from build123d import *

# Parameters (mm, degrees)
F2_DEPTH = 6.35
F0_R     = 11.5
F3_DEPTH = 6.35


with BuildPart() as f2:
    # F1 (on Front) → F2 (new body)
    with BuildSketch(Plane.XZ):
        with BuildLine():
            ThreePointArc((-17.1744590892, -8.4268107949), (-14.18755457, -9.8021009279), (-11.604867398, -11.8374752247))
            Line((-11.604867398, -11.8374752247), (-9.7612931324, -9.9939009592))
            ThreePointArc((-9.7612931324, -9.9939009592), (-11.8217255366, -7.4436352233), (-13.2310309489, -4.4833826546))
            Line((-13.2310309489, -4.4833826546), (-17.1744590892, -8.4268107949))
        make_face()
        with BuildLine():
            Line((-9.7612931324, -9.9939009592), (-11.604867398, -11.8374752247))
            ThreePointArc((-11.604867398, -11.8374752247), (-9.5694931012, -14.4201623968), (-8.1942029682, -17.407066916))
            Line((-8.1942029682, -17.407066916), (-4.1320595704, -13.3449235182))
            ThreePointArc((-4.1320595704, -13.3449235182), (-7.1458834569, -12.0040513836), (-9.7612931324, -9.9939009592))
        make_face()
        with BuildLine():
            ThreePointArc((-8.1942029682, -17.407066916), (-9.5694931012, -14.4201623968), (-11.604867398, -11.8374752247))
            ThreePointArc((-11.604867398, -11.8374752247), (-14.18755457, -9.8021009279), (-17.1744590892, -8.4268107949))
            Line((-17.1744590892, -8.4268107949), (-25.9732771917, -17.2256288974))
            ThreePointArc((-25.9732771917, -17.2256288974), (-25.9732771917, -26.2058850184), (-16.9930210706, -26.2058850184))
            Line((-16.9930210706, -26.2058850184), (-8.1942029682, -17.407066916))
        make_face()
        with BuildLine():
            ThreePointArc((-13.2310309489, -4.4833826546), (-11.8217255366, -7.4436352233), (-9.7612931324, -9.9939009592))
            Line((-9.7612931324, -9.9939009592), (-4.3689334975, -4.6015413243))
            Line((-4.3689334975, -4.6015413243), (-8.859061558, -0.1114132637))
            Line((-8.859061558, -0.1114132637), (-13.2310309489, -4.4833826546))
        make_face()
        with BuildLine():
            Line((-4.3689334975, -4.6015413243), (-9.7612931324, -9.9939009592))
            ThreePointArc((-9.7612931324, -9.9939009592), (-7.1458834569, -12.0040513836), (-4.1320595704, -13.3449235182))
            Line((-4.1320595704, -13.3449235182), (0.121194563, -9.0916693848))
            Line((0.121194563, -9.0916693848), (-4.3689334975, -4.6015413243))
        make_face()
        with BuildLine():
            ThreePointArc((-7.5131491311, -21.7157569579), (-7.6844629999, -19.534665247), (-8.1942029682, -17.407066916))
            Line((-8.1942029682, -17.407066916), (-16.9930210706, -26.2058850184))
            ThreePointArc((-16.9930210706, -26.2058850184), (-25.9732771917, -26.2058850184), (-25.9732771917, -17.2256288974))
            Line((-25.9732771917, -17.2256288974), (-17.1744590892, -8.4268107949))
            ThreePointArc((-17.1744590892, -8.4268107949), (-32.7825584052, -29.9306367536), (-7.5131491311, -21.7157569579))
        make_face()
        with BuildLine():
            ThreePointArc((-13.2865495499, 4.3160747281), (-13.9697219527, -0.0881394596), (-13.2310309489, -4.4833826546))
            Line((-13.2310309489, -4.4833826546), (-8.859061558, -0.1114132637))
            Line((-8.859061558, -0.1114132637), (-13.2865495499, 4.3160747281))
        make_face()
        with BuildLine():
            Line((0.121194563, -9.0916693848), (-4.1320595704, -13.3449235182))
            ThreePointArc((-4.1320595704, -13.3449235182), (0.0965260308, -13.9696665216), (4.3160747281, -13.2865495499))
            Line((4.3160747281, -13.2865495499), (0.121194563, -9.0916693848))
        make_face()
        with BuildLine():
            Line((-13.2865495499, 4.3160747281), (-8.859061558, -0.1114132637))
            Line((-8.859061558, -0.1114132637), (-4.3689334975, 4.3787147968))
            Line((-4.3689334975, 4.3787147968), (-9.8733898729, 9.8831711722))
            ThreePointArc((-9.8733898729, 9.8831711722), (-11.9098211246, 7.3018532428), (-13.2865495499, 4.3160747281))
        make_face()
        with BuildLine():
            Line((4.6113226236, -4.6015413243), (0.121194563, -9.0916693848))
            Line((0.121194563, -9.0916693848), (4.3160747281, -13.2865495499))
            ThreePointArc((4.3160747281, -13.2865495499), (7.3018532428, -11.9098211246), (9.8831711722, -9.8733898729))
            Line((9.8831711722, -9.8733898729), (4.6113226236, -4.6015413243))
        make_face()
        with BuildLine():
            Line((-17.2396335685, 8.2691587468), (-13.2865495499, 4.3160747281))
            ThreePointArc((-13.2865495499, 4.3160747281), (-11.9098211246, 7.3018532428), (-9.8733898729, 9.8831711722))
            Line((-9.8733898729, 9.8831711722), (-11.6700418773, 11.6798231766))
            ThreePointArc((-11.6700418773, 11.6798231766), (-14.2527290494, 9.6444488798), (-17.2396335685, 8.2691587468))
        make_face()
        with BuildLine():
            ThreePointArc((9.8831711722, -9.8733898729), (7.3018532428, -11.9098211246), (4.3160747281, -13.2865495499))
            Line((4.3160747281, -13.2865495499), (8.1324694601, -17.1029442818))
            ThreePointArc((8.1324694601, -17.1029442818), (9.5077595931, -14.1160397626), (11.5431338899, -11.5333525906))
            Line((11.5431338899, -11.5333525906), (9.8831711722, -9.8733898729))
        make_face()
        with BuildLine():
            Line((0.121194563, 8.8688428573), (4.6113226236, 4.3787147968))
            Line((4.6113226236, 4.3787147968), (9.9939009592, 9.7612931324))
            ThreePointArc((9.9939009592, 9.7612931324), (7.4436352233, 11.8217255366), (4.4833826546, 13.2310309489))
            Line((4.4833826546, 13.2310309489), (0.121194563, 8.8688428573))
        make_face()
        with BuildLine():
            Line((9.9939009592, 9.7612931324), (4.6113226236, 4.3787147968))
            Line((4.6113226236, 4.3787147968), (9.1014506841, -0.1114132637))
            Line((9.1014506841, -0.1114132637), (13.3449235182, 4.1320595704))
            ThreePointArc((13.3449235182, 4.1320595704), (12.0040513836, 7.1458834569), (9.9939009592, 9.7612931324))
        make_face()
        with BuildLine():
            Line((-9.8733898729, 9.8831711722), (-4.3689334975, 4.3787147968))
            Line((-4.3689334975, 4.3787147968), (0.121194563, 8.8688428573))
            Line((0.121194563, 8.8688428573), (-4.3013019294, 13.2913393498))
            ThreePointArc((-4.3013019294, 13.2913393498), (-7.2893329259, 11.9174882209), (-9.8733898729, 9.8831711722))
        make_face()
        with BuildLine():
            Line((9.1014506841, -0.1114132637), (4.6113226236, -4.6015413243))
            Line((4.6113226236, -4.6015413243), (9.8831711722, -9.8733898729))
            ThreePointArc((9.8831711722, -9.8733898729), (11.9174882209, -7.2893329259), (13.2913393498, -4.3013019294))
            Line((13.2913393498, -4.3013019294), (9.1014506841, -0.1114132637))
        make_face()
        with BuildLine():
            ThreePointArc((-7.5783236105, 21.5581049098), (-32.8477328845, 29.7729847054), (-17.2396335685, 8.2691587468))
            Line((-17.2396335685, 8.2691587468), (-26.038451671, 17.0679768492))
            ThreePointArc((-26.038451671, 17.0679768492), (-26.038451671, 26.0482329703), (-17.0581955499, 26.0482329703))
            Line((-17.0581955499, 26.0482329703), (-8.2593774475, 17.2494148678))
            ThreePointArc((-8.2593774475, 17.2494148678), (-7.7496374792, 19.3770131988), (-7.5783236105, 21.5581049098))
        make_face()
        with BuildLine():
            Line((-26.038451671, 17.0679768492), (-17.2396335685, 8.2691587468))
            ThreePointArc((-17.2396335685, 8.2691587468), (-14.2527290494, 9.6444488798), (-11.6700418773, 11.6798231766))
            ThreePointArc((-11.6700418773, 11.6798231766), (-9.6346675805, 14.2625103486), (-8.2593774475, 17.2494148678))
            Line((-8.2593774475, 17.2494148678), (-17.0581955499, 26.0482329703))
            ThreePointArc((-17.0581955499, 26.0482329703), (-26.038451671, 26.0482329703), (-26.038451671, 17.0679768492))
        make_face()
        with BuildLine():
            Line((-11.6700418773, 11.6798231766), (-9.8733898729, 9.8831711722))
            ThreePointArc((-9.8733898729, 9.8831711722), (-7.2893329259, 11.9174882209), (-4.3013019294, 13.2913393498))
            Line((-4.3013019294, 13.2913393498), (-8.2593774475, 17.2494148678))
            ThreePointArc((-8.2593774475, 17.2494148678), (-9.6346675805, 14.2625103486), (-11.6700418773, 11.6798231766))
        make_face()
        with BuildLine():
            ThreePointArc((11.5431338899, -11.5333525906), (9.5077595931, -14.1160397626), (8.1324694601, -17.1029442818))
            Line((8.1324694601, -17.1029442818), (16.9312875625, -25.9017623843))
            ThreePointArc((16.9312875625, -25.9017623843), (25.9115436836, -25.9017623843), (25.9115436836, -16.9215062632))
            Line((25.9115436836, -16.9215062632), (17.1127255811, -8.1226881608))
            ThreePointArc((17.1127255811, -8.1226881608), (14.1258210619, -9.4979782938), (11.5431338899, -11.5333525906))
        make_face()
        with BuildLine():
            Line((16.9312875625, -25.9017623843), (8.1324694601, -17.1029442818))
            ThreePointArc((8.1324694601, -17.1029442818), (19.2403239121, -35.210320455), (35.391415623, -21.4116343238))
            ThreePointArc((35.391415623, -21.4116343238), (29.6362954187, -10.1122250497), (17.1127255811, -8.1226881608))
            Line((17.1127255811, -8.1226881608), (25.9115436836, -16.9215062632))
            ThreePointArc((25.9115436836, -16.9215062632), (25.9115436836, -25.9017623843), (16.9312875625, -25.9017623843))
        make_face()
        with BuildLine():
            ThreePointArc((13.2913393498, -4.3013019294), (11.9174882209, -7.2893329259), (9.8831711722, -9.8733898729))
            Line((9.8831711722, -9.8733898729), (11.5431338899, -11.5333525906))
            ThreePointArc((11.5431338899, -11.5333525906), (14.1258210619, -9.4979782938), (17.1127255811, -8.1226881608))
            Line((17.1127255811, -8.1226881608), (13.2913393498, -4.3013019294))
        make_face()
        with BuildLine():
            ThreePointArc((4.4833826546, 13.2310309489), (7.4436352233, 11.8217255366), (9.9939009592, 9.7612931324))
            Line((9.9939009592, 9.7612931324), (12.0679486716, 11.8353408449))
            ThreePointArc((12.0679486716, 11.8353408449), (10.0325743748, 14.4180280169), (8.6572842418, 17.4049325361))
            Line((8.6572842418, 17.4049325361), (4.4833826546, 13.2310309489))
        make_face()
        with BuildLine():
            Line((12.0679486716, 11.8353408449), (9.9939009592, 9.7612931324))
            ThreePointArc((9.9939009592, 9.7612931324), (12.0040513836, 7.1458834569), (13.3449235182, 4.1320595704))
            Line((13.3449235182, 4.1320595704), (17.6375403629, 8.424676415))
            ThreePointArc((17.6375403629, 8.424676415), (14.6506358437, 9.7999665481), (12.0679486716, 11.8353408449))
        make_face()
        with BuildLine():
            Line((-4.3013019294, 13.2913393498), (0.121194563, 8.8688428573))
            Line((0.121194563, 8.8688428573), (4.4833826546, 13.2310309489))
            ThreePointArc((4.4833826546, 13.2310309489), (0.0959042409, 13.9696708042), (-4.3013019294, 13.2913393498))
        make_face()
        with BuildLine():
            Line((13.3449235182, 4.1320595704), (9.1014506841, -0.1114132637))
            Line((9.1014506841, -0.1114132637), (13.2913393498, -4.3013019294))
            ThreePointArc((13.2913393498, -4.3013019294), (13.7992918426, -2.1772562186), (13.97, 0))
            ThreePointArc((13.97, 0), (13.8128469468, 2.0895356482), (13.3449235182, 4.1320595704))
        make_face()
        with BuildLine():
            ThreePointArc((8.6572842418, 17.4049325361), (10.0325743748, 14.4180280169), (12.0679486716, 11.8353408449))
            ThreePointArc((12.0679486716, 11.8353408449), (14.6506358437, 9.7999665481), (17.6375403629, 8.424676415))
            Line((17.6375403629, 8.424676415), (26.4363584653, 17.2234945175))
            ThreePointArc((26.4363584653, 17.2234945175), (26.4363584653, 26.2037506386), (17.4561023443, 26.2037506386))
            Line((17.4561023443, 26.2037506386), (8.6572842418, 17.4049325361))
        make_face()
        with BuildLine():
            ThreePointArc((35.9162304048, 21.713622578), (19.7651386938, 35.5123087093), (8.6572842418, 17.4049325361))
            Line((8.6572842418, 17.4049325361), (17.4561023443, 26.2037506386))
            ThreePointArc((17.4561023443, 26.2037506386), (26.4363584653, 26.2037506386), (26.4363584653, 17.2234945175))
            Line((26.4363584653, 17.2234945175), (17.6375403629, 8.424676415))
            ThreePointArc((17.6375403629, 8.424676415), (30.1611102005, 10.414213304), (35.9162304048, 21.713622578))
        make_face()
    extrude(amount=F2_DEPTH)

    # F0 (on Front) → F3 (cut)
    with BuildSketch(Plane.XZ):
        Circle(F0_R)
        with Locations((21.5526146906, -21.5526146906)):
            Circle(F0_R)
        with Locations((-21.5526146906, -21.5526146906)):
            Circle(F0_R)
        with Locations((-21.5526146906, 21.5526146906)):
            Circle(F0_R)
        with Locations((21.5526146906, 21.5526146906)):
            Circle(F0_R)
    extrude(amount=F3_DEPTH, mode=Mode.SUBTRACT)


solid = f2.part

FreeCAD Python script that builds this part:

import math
import FreeCAD as App
import Part
import Sketcher
Q = App.Units.Quantity


def add_polygon(sketch, points):
    """Adds a closed chain of lines whose ends are joined by coincident constraints."""
    first, n = sketch.GeometryCount, len(points)
    for a, b in zip(points, points[1:] + points[:1]):
        sketch.addGeometry(Part.LineSegment(App.Vector(*a, 0), App.Vector(*b, 0)), False)
    for i in range(n):
        sketch.addConstraint(Sketcher.Constraint("Coincident", first + i, 2, first + (i + 1) % n, 1))

doc = App.newDocument("Part")
body = doc.addObject("PartDesign::Body", "Body")

# Sketch on XZ plane
sketch1 = body.newObject("Sketcher::SketchObject", "Sketch")
sketch1.AttachmentSupport = (doc.getObject("XZ_Plane"), [""])
sketch1.MapMode = "FlatFace"
sketch1.addGeometry(Part.LineSegment(App.Vector(17.1, -8.1, 0), App.Vector(13.3, -4.3, 0)), False)  # 0
sketch1.addGeometry(Part.ArcOfCircle(Part.Circle(App.Vector(0, 0, 0), App.Vector(0, 0, 1), 14), math.radians(-17.93), math.radians(0)), False)  # 1
sketch1.addGeometry(Part.ArcOfCircle(Part.Circle(App.Vector(0, 0, 0), App.Vector(0, 0, 1), 14), math.radians(0), math.radians(17.2)), False)  # 2
sketch1.addGeometry(Part.LineSegment(App.Vector(13.3, 4.1, 0), App.Vector(17.6, 8.4, 0)), False)  # 3
sketch1.addGeometry(Part.ArcOfCircle(Part.Circle(App.Vector(21.9, 21.7, 0), App.Vector(0, 0, 1), 14), math.radians(-108), math.radians(198)), False)  # 4
sketch1.addGeometry(Part.LineSegment(App.Vector(8.7, 17.4, 0), App.Vector(4.5, 13.2, 0)), False)  # 5
sketch1.addGeometry(Part.ArcOfCircle(Part.Circle(App.Vector(0, 0, 0), App.Vector(0, 0, 1), 14), math.radians(71), math.radians(108)), False)  # 6
sketch1.addGeometry(Part.LineSegment(App.Vector(-4.3, 13.3, 0), App.Vector(-8.3, 17.2, 0)), False)  # 7
sketch1.addGeometry(Part.ArcOfCircle(Part.Circle(App.Vector(-21.5, 21.6, 0), App.Vector(0, 0, 1), 14), math.radians(-17.96), math.radians(0)), False)  # 8
sketch1.addGeometry(Part.ArcOfCircle(Part.Circle(App.Vector(-21.5, 21.6, 0), App.Vector(0, 0, 1), 14), math.radians(0), math.radians(288)), False)  # 9
sketch1.addGeometry(Part.LineSegment(App.Vector(-17.2, 8.3, 0), App.Vector(-13.3, 4.3, 0)), False)  # 10
sketch1.addGeometry(Part.ArcOfCircle(Part.Circle(App.Vector(0, 0, 0), App.Vector(0, 0, 1), 14), math.radians(162), math.radians(199)), False)  # 11
sketch1.addGeometry(Part.LineSegment(App.Vector(-13.2, -4.5, 0), App.Vector(-17.2, -8.4, 0)), False)  # 12
sketch1.addGeometry(Part.ArcOfCircle(Part.Circle(App.Vector(-21.5, -21.7, 0), App.Vector(0, 0, 1), 14), math.radians(72), math.radians(360)), False)  # 13
sketch1.addGeometry(Part.ArcOfCircle(Part.Circle(App.Vector(-21.5, -21.7, 0), App.Vector(0, 0, 1), 14), math.radians(0), math.radians(17.96)), False)  # 14
sketch1.addGeometry(Part.LineSegment(App.Vector(-8.2, -17.4, 0), App.Vector(-4.1, -13.3, 0)), False)  # 15
sketch1.addGeometry(Part.ArcOfCircle(Part.Circle(App.Vector(0, 0, 0), App.Vector(0, 0, 1), 14), math.radians(-107), math.radians(-72)), False)  # 16
sketch1.addGeometry(Part.LineSegment(App.Vector(4.3, -13.3, 0), App.Vector(8.1, -17.1, 0)), False)  # 17
sketch1.addGeometry(Part.ArcOfCircle(Part.Circle(App.Vector(21.4, -21.4, 0), App.Vector(0, 0, 1), 14), math.radians(162), math.radians(360)), False)  # 18
sketch1.addGeometry(Part.ArcOfCircle(Part.Circle(App.Vector(21.4, -21.4, 0), App.Vector(0, 0, 1), 14), math.radians(0), math.radians(108)), False)  # 19
add_polygon(sketch1, [(4.6, 4.4), (9.1, -0.1), (4.6, -4.6), (0.1, -9.1), (-4.4, -4.6), (-8.9, -0.1), (0.1, 8.9)])  # lines 20-26
sketch1.addConstraint([
    Sketcher.Constraint("Coincident", 0, 2, 1, 1),
    Sketcher.Constraint("Tangent", 1, 2, 2, 1),
    Sketcher.Constraint("Coincident", 2, 2, 3, 1),
    Sketcher.Constraint("Coincident", 3, 2, 4, 1),
    Sketcher.Constraint("Coincident", 4, 2, 5, 1),
    Sketcher.Constraint("Coincident", 5, 2, 6, 1),
    Sketcher.Constraint("Coincident", 6, 2, 7, 1),
    Sketcher.Constraint("Coincident", 7, 2, 8, 1),
    Sketcher.Constraint("Tangent", 8, 2, 9, 1),
    Sketcher.Constraint("Coincident", 9, 2, 10, 1),
    Sketcher.Constraint("Coincident", 10, 2, 11, 1),
    Sketcher.Constraint("Coincident", 11, 2, 12, 1),
    Sketcher.Constraint("Coincident", 12, 2, 13, 1),
    Sketcher.Constraint("Tangent", 13, 2, 14, 1),
    Sketcher.Constraint("Coincident", 14, 2, 15, 1),
    Sketcher.Constraint("Coincident", 15, 2, 16, 1),
    Sketcher.Constraint("Coincident", 16, 2, 17, 1),
    Sketcher.Constraint("Coincident", 17, 2, 18, 1),
    Sketcher.Constraint("Tangent", 18, 2, 19, 1),
    Sketcher.Constraint("Coincident", 19, 2, 0, 1),
    Sketcher.Constraint("Coincident", 1, 3, -1, 1),
    Sketcher.Constraint("Coincident", 6, 3, -1, 1),
    Sketcher.Constraint("Coincident", 11, 3, -1, 1),
    Sketcher.Constraint("Coincident", 16, 3, -1, 1),
    Sketcher.Constraint("Equal", 1, 2),
    Sketcher.Constraint("Equal", 2, 4),
    Sketcher.Constraint("Equal", 4, 6),
    Sketcher.Constraint("Equal", 6, 8),
    Sketcher.Constraint("Equal", 8, 9),
    Sketcher.Constraint("Equal", 9, 11),
    Sketcher.Constraint("Equal", 11, 13),
    Sketcher.Constraint("Equal", 13, 14),
    Sketcher.Constraint("Equal", 14, 16),
    Sketcher.Constraint("Equal", 16, 18),
    Sketcher.Constraint("Equal", 18, 19),
    Sketcher.Constraint("PointOnObject", 1, 2, -1),
    Sketcher.Constraint("Perpendicular", 0, 3),
    Sketcher.Constraint("Parallel", 3, 5),
    Sketcher.Constraint("Perpendicular", 5, 7),
    Sketcher.Constraint("Parallel", 7, 10),
    Sketcher.Constraint("Perpendicular", 10, 12),
    Sketcher.Constraint("Parallel", 12, 15),
    Sketcher.Constraint("Perpendicular", 15, 17),
    Sketcher.Constraint("Parallel", 17, 20),
    Sketcher.Constraint("Perpendicular", 20, 21),
    Sketcher.Constraint("Parallel", 21, 22),
    Sketcher.Constraint("Perpendicular", 22, 23),
    Sketcher.Constraint("Parallel", 23, 24),
    Sketcher.Constraint("Perpendicular", 24, 25),
    Sketcher.Constraint("Perpendicular", 25, 26),
    Sketcher.Constraint("Horizontal", 9, 3, 8, 2),
    Sketcher.Constraint("Horizontal", 14, 3, 13, 2),
    Sketcher.Constraint("Horizontal", 19, 3, 18, 2),
    Sketcher.Constraint("Horizontal", 21, 2, 23, 2),
    Sketcher.Constraint("Horizontal", 20, 2, 24, 2),
    Sketcher.Constraint("Vertical", 22, 2, 25, 2),
    Sketcher.Constraint("Vertical", 21, 2, 26, 2),
    Sketcher.Constraint("Equal", 21, 22),
    Sketcher.Constraint("Radius", 1, Q("0.55 in")),
    Sketcher.Constraint("Distance", 25, Q("0.5 in")),
    Sketcher.Constraint("DistanceY", 0, 2, -1, 1, Q("4.301302 mm")),
    Sketcher.Constraint("DistanceX", 6, 2, -1, 1, Q("4.301302 mm")),
    Sketcher.Constraint("DistanceX", 0, 2, 3, 2, Q("4.346201 mm")),
    Sketcher.Constraint("DistanceX", 5, 2, 4, 2, Q("4.173902 mm")),
    Sketcher.Constraint("DistanceX", 12, 2, 15, 2, Q("13.0424 mm")),
    Sketcher.Constraint("Distance", 12, Q("5.57685 mm")),
    Sketcher.Constraint("Distance", 15, Q("5.744738 mm")),
    Sketcher.Constraint("DistanceX", -1, 1, 4, 3, Q("21.94623 mm")),
    Sketcher.Constraint("DistanceX", 13, 3, -1, 1, Q("21.483149 mm")),
    Sketcher.Constraint("DistanceY", -1, 1, 2, 2, Q("4.13206 mm")),
    Sketcher.Constraint("DistanceY", -1, 1, 9, 2, Q("8.269159 mm")),
    Sketcher.Constraint("DistanceX", 10, 2, -1, 1, Q("13.28655 mm")),
    Sketcher.Constraint("DistanceY", 16, 2, -1, 1, Q("13.28655 mm")),
    Sketcher.Constraint("DistanceX", -1, 1, 17, 2, Q("8.132469 mm")),
    Sketcher.Constraint("DistanceY", 19, 2, -1, 1, Q("8.122688 mm")),
    Sketcher.Constraint("DistanceX", -1, 1, 20, 2, Q("9.101451 mm")),
    Sketcher.Constraint("DistanceY", 21, 2, -1, 1, Q("4.601541 mm")),
    Sketcher.Constraint("DistanceY", 13, 3, 8, 3, Q("43.273862 mm")),
])
pad1 = body.newObject("PartDesign::Pad", "Pad")
pad1.Profile = sketch1
pad1.Length = Q("0.25 in")

# Sketch on XZ plane
sketch2 = body.newObject("Sketcher::SketchObject", "Sketch001")
sketch2.AttachmentSupport = (doc.getObject("XZ_Plane"), [""])
sketch2.MapMode = "FlatFace"
sketch2.addGeometry([
    Part.Circle(App.Vector(0, 0, 0), App.Vector(0, 0, 1), 12),  # 0
    Part.Circle(App.Vector(22, -22, 0), App.Vector(0, 0, 1), 12),  # 1
    Part.Circle(App.Vector(-22, -22, 0), App.Vector(0, 0, 1), 12),  # 2
    Part.Circle(App.Vector(-22, 22, 0), App.Vector(0, 0, 1), 12),  # 3
    Part.Circle(App.Vector(22, 22, 0), App.Vector(0, 0, 1), 12),  # 4
], False)
sketch2.addConstraint([
    Sketcher.Constraint("Coincident", 0, 3, -1, 1),
    Sketcher.Constraint("Equal", 0, 1),
    Sketcher.Constraint("Equal", 1, 2),
    Sketcher.Constraint("Equal", 2, 3),
    Sketcher.Constraint("Equal", 3, 4),
    Sketcher.Constraint("Symmetric", 1, 3, 3, 3, -1, 1),
    Sketcher.Constraint("Symmetric", 2, 3, 4, 3, -1, 1),
    Sketcher.Constraint("Symmetric", 1, 3, 2, 3, -2),
    Sketcher.Constraint("Diameter", 0, Q("23 mm")),
    Sketcher.Constraint("DistanceX", 2, 3, 1, 3, Q("43.105229 mm")),
    Sketcher.Constraint("DistanceY", 2, 3, 3, 3, Q("43.105229 mm")),
])
pocket1 = body.newObject("PartDesign::Pocket", "Pocket")
pocket1.Profile = sketch2
pocket1.Length = Q("0.25 in")
pocket1.Reversed = True

doc.recompute()
